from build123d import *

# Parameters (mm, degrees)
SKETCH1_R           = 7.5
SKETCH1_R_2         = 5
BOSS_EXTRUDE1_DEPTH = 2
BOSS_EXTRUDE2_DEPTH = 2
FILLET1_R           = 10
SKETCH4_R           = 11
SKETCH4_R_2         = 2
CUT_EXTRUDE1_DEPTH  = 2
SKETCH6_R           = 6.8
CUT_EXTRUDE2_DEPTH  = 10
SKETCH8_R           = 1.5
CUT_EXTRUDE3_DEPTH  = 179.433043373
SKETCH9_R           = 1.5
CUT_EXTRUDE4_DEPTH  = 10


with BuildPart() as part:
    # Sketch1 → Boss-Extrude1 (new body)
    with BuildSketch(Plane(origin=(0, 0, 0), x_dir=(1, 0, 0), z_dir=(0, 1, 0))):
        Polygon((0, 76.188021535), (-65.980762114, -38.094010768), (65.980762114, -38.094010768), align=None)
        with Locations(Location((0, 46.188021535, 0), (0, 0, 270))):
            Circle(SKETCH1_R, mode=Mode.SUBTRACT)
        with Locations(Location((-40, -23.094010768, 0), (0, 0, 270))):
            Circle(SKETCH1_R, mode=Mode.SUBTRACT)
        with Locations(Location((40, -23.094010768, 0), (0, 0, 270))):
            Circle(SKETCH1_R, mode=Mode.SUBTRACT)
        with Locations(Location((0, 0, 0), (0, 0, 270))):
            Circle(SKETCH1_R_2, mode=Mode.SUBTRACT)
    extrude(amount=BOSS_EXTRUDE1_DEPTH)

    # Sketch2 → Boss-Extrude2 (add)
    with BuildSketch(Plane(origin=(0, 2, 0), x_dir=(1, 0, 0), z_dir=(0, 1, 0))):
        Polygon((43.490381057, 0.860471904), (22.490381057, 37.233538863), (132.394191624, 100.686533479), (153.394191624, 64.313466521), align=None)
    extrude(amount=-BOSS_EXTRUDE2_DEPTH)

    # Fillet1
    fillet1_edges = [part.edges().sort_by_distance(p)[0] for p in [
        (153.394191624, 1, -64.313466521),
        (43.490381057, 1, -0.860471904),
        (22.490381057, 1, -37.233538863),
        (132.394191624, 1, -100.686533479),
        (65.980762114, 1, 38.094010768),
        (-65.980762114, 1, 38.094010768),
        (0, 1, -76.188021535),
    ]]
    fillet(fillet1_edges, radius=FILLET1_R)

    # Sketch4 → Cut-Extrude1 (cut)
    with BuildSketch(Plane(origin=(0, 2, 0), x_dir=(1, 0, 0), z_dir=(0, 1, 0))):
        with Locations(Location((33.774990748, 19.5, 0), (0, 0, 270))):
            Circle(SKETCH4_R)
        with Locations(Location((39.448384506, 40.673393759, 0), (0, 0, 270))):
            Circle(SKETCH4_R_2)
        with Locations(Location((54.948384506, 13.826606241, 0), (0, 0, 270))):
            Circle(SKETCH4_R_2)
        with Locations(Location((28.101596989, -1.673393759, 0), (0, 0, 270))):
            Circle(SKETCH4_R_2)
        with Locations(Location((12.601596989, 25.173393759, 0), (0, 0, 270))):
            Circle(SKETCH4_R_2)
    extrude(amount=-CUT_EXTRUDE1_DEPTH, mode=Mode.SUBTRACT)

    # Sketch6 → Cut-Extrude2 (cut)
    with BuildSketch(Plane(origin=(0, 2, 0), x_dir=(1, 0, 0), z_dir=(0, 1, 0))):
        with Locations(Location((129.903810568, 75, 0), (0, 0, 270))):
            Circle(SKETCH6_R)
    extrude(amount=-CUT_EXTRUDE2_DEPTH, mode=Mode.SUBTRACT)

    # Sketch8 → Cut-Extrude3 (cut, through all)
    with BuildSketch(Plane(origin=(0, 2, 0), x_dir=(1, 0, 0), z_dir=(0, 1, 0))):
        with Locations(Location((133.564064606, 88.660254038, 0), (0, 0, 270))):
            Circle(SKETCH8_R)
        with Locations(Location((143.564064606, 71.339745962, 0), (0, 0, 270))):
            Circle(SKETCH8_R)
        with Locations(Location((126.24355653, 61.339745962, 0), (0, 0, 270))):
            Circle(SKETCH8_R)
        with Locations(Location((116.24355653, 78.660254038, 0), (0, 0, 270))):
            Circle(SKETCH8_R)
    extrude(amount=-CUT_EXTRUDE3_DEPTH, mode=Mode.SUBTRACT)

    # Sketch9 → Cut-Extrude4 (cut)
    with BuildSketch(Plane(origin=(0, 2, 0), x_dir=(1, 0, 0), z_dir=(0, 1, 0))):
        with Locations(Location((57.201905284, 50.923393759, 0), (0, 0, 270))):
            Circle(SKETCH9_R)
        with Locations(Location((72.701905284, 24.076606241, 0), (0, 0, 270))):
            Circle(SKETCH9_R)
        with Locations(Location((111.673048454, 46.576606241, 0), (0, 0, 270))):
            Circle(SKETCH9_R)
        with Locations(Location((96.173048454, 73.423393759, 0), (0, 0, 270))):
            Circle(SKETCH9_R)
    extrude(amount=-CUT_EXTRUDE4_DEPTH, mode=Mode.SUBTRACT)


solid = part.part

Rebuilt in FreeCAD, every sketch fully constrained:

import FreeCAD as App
import Part
import Sketcher
from FreeCAD import Vector
Q = App.Units.Quantity


def edges_at(feature, points):
    """Names of the edges that pass closest to the given points."""
    edges = feature.Shape.Edges
    near = lambda p: min(range(len(edges)), key=lambda i: edges[i].distToShape(Part.Vertex(*p))[0])
    return sorted({f"Edge{near(p) + 1}" for p in points})


def add_polygon(sketch, points):
    """Adds a closed chain of lines whose ends are joined by coincident constraints."""
    first, n = sketch.GeometryCount, len(points)
    for a, b in zip(points, points[1:] + points[:1]):
        sketch.addGeometry(Part.LineSegment(App.Vector(*a, 0), App.Vector(*b, 0)), False)
    for i in range(n):
        sketch.addConstraint(Sketcher.Constraint("Coincident", first + i, 2, first + (i + 1) % n, 1))

doc = App.newDocument("Part")
params = doc.addObject("Spreadsheet::Sheet", "Params")
for row, (alias, value) in enumerate([
    ("sketch1_diameter", "15 mm"),
    ("sketch1_diameter2", "10 mm"),
    ("pad1_length", "2 mm"),
    ("sketch2_length", "42 mm"),
    ("pad2_length", "2 mm"),
    ("fillet_radius", "10 mm"),
    ("sketch3_diameter", "22 mm"),
    ("sketch3_diameter2", "4 mm"),
    ("pocket1_length", "2 mm"),
    ("sketch4_diameter", "13.6 mm"),
    ("pocket2_length", "10 mm"),
    ("sketch5_diameter", "3 mm"),
    ("sketch6_diameter", "3 mm"),
    ("pocket4_length", "10 mm"),
], start=1):
    params.set(f"A{row}", alias)
    params.set(f"B{row}", "=" + value)
    params.setAlias(f"B{row}", alias)

body = doc.addObject("PartDesign::Body", "Body")

# Sketch on XZ plane
sketch1 = body.newObject("Sketcher::SketchObject", "Sketch")
sketch1.AttachmentSupport = (doc.getObject("XZ_Plane"), [""])
sketch1.MapMode = "FlatFace"
add_polygon(sketch1, [(0, -76.188022), (-65.980762, 38.094011), (65.980762, 38.094011)])  # lines 0-2
sketch1.addGeometry(Part.Circle(Vector(-40, 23.094011, 0), Vector(0, 0, 1), 7.5), False)  # 3
sketch1.addGeometry(Part.Circle(Vector(40, 23.094011, 0), Vector(0, 0, 1), 7.5), False)  # 4
sketch1.addGeometry(Part.Circle(Vector(0, 0, 0), Vector(0, 0, 1), 5), False)  # 5
sketch1.addGeometry(Part.Circle(Vector(0, -46.188022, 0), Vector(0, 0, 1), 7.5), False)  # 6
sketch1.addConstraint(Sketcher.Constraint("Horizontal", 1))
sketch1.addConstraint(Sketcher.Constraint("Coincident", 5, 3, -1, 1))
sketch1.addConstraint(Sketcher.Constraint("Equal", 3, 4))
sketch1.addConstraint(Sketcher.Constraint("Equal", 4, 6))
sketch1.addConstraint(Sketcher.Constraint("Symmetric", 3, 3, 4, 3, -2))
sketch1.addConstraint(Sketcher.Constraint("PointOnObject", 6, 3, -2))
sketch1.addConstraint(Sketcher.Constraint("PointOnObject", 2, 2, -2))
sketch1.addConstraint(Sketcher.Constraint("Equal", 0, 2))
sketch1.addConstraint(Sketcher.Constraint("Diameter", 3, Q("15 mm")))
sketch1.addConstraint(Sketcher.Constraint("Diameter", 5, Q("10 mm")))
sketch1.addConstraint(Sketcher.Constraint("Angle", 0, Q("120 deg")))
sketch1.addConstraint(Sketcher.Constraint("DistanceX", 3, 3, -1, 1, Q("40 mm")))
sketch1.addConstraint(Sketcher.Constraint("DistanceY", 3, 3, 0, 2, Q("15 mm")))
sketch1.addConstraint(Sketcher.Constraint("DistanceY", 2, 2, 6, 3, Q("30 mm")))
sketch1.addConstraint(Sketcher.Constraint("DistanceX", 1, 1, 1, 2, Q("131.961524 mm")))
sketch1.addConstraint(Sketcher.Constraint("DistanceY", -1, 1, 3, 3, Q("23.094011 mm")))
sketch1.setExpression("Constraints[11]", "Params.sketch1_diameter")
sketch1.setExpression("Constraints[12]", "Params.sketch1_diameter2")
pad1 = body.newObject("PartDesign::Pad", "Pad")
pad1.Profile = sketch1
pad1.setExpression("Length", "Params.pad1_length")
pad1.Reversed = True

# Sketch on XZ plane
sketch2 = body.newObject("Sketcher::SketchObject", "Sketch001")
sketch2.AttachmentSupport = (doc.getObject("XZ_Plane"), [""])
sketch2.MapMode = "FlatFace"
sketch2.AttachmentOffset = App.Placement(Vector(0, 0, -2), App.Rotation())
add_polygon(sketch2, [(22.490381, -37.233539), (43.490381, -0.860472), (153.394192, -64.313467), (132.394192, -100.686533)])  # lines 0-3
sketch2.addConstraint(Sketcher.Constraint("Perpendicular", 0, 1))
sketch2.addConstraint(Sketcher.Constraint("Perpendicular", 1, 2))
sketch2.addConstraint(Sketcher.Constraint("Perpendicular", 2, 3))
sketch2.addConstraint(Sketcher.Constraint("Angle", 0, Q("60 deg")))
sketch2.addConstraint(Sketcher.Constraint("Distance", 0, Q("42 mm")))
sketch2.addConstraint(Sketcher.Constraint("Distance", 1, Q("126.905989 mm")))
sketch2.addConstraint(Sketcher.Constraint("DistanceX", -1, 1, 0, 2, Q("43.490381 mm")))
sketch2.addConstraint(Sketcher.Constraint("DistanceY", 0, 2, -1, 1, Q("0.860472 mm")))
sketch2.setExpression("Constraints[8]", "Params.sketch2_length")
pad2 = body.newObject("PartDesign::Pad", "Pad001")
pad2.Profile = sketch2
pad2.setExpression("Length", "Params.pad2_length")
doc.recompute()

fillet = body.newObject("PartDesign::Fillet", "Fillet")
fillet.Base = (pad2, edges_at(pad2, [
    (153.394, 1, -64.313),
    (43.49, 1, -0.86),
    (22.49, 1, -37.234),
    (132.394, 1, -100.687),
    (65.981, 1, 38.094),
    (-65.981, 1, 38.094),
    (0, 1, -76.188),
]))
fillet.setExpression("Radius", "Params.fillet_radius")

# Sketch on XZ plane
sketch3 = body.newObject("Sketcher::SketchObject", "Sketch002")
sketch3.AttachmentSupport = (doc.getObject("XZ_Plane"), [""])
sketch3.MapMode = "FlatFace"
sketch3.AttachmentOffset = App.Placement(Vector(0, 0, -2), App.Rotation())
sketch3.addGeometry(Part.Circle(Vector(33.774991, -19.5, 0), Vector(0, 0, 1), 11), False)
sketch3.addGeometry(Part.Circle(Vector(39.448385, -40.673394, 0), Vector(0, 0, 1), 2), False)
sketch3.addGeometry(Part.Circle(Vector(54.948385, -13.826606, 0), Vector(0, 0, 1), 2), False)
sketch3.addGeometry(Part.Circle(Vector(28.101597, 1.673394, 0), Vector(0, 0, 1), 2), False)
sketch3.addGeometry(Part.Circle(Vector(12.601597, -25.173394, 0), Vector(0, 0, 1), 2), False)
sketch3.addConstraint(Sketcher.Constraint("Equal", 1, 2))
sketch3.addConstraint(Sketcher.Constraint("Equal", 2, 3))
sketch3.addConstraint(Sketcher.Constraint("Equal", 3, 4))
sketch3.addConstraint(Sketcher.Constraint("Diameter", 0, Q("22 mm")))
sketch3.addConstraint(Sketcher.Constraint("Diameter", 1, Q("4 mm")))
sketch3.addConstraint(Sketcher.Constraint("DistanceY", 0, 3, -1, 1, Q("19.5 mm")))
sketch3.addConstraint(Sketcher.Constraint("DistanceX", 1, 3, 2, 3, Q("15.5 mm")))
sketch3.addConstraint(Sketcher.Constraint("DistanceY", 2, 3, 3, 3, Q("15.5 mm")))
sketch3.addConstraint(Sketcher.Constraint("DistanceY", 1, 3, 4, 3, Q("15.5 mm")))
sketch3.addConstraint(Sketcher.Constraint("DistanceX", 4, 3, 3, 3, Q("15.5 mm")))
sketch3.addConstraint(Sketcher.Constraint("DistanceX", -1, 1, 0, 3, Q("33.774991 mm")))
sketch3.addConstraint(Sketcher.Constraint("DistanceX", -1, 1, 1, 3, Q("39.448385 mm")))
sketch3.addConstraint(Sketcher.Constraint("DistanceY", 1, 3, -1, 1, Q("40.673394 mm")))
sketch3.addConstraint(Sketcher.Constraint("DistanceY", 2, 3, -1, 1, Q("13.826606 mm")))
sketch3.addConstraint(Sketcher.Constraint("DistanceX", -1, 1, 3, 3, Q("28.101597 mm")))
sketch3.setExpression("Constraints[3]", "Params.sketch3_diameter")
sketch3.setExpression("Constraints[4]", "Params.sketch3_diameter2")
pocket1 = body.newObject("PartDesign::Pocket", "Pocket")
pocket1.Profile = sketch3
pocket1.setExpression("Length", "Params.pocket1_length")
pocket1.Reversed = True

# Sketch on XZ plane
sketch4 = body.newObject("Sketcher::SketchObject", "Sketch003")
sketch4.AttachmentSupport = (doc.getObject("XZ_Plane"), [""])
sketch4.MapMode = "FlatFace"
sketch4.AttachmentOffset = App.Placement(Vector(0, 0, -2), App.Rotation())
sketch4.addGeometry(Part.Circle(Vector(129.903811, -75, 0), Vector(0, 0, 1), 6.8), False)
sketch4.addConstraint(Sketcher.Constraint("Diameter", 0, Q("13.6 mm")))
sketch4.addConstraint(Sketcher.Constraint("DistanceY", 0, 3, -1, 1, Q("75 mm")))
sketch4.addConstraint(Sketcher.Constraint("DistanceX", -1, 1, 0, 3, Q("129.903811 mm")))
sketch4.setExpression("Constraints[0]", "Params.sketch4_diameter")
pocket2 = body.newObject("PartDesign::Pocket", "Pocket001")
pocket2.Profile = sketch4
pocket2.setExpression("Length", "Params.pocket2_length")
pocket2.Reversed = True

# Sketch on XZ plane
sketch5 = body.newObject("Sketcher::SketchObject", "Sketch004")
sketch5.AttachmentSupport = (doc.getObject("XZ_Plane"), [""])
sketch5.MapMode = "FlatFace"
sketch5.AttachmentOffset = App.Placement(Vector(0, 0, -2), App.Rotation())
sketch5.addGeometry(Part.Circle(Vector(133.564065, -88.660254, 0), Vector(0, 0, 1), 1.5), False)
sketch5.addGeometry(Part.Circle(Vector(143.564065, -71.339746, 0), Vector(0, 0, 1), 1.5), False)
sketch5.addGeometry(Part.Circle(Vector(126.243557, -61.339746, 0), Vector(0, 0, 1), 1.5), False)
sketch5.addGeometry(Part.Circle(Vector(116.243557, -78.660254, 0), Vector(0, 0, 1), 1.5), False)
sketch5.addConstraint(Sketcher.Constraint("Equal", 0, 1))
sketch5.addConstraint(Sketcher.Constraint("Equal", 1, 2))
sketch5.addConstraint(Sketcher.Constraint("Equal", 2, 3))
sketch5.addConstraint(Sketcher.Constraint("Diameter", 0, Q("3 mm")))
sketch5.addConstraint(Sketcher.Constraint("DistanceX", 0, 3, 1, 3, Q("10 mm")))
sketch5.addConstraint(Sketcher.Constraint("DistanceY", 1, 3, 2, 3, Q("10 mm")))
sketch5.addConstraint(Sketcher.Constraint("DistanceY", 0, 3, 3, 3, Q("10 mm")))
sketch5.addConstraint(Sketcher.Constraint("DistanceX", 3, 3, 2, 3, Q("10 mm")))
sketch5.addConstraint(Sketcher.Constraint("DistanceY", 0, 3, 1, 3, Q("17.320508 mm")))
sketch5.addConstraint(Sketcher.Constraint("DistanceX", 2, 3, 1, 3, Q("17.320508 mm")))
sketch5.addConstraint(Sketcher.Constraint("DistanceX", -1, 1, 0, 3, Q("133.564065 mm")))
sketch5.addConstraint(Sketcher.Constraint("DistanceY", 0, 3, -1, 1, Q("88.660254 mm")))
sketch5.setExpression("Constraints[3]", "Params.sketch5_diameter")
pocket3 = body.newObject("PartDesign::Pocket", "Pocket002")
pocket3.Profile = sketch5
pocket3.Type = "ThroughAll"
pocket3.Reversed = True

# Sketch on XZ plane
sketch6 = body.newObject("Sketcher::SketchObject", "Sketch005")
sketch6.AttachmentSupport = (doc.getObject("XZ_Plane"), [""])
sketch6.MapMode = "FlatFace"
sketch6.AttachmentOffset = App.Placement(Vector(0, 0, -2), App.Rotation())
sketch6.addGeometry(Part.Circle(Vector(57.201905, -50.923394, 0), Vector(0, 0, 1), 1.5), False)
sketch6.addGeometry(Part.Circle(Vector(72.701905, -24.076606, 0), Vector(0, 0, 1), 1.5), False)
sketch6.addGeometry(Part.Circle(Vector(111.673048, -46.576606, 0), Vector(0, 0, 1), 1.5), False)
sketch6.addGeometry(Part.Circle(Vector(96.173048, -73.423394, 0), Vector(0, 0, 1), 1.5), False)
sketch6.addConstraint(Sketcher.Constraint("Equal", 0, 1))
sketch6.addConstraint(Sketcher.Constraint("Equal", 1, 2))
sketch6.addConstraint(Sketcher.Constraint("Equal", 2, 3))
sketch6.addConstraint(Sketcher.Constraint("Diameter", 0, Q("3 mm")))
sketch6.addConstraint(Sketcher.Constraint("DistanceX", 0, 3, 1, 3, Q("15.5 mm")))
sketch6.addConstraint(Sketcher.Constraint("DistanceY", 2, 3, 1, 3, Q("22.5 mm")))
sketch6.addConstraint(Sketcher.Constraint("DistanceX", 3, 3, 2, 3, Q("15.5 mm")))
sketch6.addConstraint(Sketcher.Constraint("DistanceY", 3, 3, 0, 3, Q("22.5 mm")))
sketch6.addConstraint(Sketcher.Constraint("DistanceX", -1, 1, 2, 3, Q("111.673048 mm")))
sketch6.addConstraint(Sketcher.Constraint("DistanceX", -1, 1, 0, 3, Q("57.201905 mm")))
sketch6.addConstraint(Sketcher.Constraint("DistanceY", 0, 3, -1, 1, Q("50.923394 mm")))
sketch6.addConstraint(Sketcher.Constraint("DistanceY", 1, 3, -1, 1, Q("24.076606 mm")))
sketch6.setExpression("Constraints[3]", "Params.sketch6_diameter")
pocket4 = body.newObject("PartDesign::Pocket", "Pocket003")
pocket4.Profile = sketch6
pocket4.setExpression("Length", "Params.pocket4_length")
pocket4.Reversed = True

doc.recompute()
